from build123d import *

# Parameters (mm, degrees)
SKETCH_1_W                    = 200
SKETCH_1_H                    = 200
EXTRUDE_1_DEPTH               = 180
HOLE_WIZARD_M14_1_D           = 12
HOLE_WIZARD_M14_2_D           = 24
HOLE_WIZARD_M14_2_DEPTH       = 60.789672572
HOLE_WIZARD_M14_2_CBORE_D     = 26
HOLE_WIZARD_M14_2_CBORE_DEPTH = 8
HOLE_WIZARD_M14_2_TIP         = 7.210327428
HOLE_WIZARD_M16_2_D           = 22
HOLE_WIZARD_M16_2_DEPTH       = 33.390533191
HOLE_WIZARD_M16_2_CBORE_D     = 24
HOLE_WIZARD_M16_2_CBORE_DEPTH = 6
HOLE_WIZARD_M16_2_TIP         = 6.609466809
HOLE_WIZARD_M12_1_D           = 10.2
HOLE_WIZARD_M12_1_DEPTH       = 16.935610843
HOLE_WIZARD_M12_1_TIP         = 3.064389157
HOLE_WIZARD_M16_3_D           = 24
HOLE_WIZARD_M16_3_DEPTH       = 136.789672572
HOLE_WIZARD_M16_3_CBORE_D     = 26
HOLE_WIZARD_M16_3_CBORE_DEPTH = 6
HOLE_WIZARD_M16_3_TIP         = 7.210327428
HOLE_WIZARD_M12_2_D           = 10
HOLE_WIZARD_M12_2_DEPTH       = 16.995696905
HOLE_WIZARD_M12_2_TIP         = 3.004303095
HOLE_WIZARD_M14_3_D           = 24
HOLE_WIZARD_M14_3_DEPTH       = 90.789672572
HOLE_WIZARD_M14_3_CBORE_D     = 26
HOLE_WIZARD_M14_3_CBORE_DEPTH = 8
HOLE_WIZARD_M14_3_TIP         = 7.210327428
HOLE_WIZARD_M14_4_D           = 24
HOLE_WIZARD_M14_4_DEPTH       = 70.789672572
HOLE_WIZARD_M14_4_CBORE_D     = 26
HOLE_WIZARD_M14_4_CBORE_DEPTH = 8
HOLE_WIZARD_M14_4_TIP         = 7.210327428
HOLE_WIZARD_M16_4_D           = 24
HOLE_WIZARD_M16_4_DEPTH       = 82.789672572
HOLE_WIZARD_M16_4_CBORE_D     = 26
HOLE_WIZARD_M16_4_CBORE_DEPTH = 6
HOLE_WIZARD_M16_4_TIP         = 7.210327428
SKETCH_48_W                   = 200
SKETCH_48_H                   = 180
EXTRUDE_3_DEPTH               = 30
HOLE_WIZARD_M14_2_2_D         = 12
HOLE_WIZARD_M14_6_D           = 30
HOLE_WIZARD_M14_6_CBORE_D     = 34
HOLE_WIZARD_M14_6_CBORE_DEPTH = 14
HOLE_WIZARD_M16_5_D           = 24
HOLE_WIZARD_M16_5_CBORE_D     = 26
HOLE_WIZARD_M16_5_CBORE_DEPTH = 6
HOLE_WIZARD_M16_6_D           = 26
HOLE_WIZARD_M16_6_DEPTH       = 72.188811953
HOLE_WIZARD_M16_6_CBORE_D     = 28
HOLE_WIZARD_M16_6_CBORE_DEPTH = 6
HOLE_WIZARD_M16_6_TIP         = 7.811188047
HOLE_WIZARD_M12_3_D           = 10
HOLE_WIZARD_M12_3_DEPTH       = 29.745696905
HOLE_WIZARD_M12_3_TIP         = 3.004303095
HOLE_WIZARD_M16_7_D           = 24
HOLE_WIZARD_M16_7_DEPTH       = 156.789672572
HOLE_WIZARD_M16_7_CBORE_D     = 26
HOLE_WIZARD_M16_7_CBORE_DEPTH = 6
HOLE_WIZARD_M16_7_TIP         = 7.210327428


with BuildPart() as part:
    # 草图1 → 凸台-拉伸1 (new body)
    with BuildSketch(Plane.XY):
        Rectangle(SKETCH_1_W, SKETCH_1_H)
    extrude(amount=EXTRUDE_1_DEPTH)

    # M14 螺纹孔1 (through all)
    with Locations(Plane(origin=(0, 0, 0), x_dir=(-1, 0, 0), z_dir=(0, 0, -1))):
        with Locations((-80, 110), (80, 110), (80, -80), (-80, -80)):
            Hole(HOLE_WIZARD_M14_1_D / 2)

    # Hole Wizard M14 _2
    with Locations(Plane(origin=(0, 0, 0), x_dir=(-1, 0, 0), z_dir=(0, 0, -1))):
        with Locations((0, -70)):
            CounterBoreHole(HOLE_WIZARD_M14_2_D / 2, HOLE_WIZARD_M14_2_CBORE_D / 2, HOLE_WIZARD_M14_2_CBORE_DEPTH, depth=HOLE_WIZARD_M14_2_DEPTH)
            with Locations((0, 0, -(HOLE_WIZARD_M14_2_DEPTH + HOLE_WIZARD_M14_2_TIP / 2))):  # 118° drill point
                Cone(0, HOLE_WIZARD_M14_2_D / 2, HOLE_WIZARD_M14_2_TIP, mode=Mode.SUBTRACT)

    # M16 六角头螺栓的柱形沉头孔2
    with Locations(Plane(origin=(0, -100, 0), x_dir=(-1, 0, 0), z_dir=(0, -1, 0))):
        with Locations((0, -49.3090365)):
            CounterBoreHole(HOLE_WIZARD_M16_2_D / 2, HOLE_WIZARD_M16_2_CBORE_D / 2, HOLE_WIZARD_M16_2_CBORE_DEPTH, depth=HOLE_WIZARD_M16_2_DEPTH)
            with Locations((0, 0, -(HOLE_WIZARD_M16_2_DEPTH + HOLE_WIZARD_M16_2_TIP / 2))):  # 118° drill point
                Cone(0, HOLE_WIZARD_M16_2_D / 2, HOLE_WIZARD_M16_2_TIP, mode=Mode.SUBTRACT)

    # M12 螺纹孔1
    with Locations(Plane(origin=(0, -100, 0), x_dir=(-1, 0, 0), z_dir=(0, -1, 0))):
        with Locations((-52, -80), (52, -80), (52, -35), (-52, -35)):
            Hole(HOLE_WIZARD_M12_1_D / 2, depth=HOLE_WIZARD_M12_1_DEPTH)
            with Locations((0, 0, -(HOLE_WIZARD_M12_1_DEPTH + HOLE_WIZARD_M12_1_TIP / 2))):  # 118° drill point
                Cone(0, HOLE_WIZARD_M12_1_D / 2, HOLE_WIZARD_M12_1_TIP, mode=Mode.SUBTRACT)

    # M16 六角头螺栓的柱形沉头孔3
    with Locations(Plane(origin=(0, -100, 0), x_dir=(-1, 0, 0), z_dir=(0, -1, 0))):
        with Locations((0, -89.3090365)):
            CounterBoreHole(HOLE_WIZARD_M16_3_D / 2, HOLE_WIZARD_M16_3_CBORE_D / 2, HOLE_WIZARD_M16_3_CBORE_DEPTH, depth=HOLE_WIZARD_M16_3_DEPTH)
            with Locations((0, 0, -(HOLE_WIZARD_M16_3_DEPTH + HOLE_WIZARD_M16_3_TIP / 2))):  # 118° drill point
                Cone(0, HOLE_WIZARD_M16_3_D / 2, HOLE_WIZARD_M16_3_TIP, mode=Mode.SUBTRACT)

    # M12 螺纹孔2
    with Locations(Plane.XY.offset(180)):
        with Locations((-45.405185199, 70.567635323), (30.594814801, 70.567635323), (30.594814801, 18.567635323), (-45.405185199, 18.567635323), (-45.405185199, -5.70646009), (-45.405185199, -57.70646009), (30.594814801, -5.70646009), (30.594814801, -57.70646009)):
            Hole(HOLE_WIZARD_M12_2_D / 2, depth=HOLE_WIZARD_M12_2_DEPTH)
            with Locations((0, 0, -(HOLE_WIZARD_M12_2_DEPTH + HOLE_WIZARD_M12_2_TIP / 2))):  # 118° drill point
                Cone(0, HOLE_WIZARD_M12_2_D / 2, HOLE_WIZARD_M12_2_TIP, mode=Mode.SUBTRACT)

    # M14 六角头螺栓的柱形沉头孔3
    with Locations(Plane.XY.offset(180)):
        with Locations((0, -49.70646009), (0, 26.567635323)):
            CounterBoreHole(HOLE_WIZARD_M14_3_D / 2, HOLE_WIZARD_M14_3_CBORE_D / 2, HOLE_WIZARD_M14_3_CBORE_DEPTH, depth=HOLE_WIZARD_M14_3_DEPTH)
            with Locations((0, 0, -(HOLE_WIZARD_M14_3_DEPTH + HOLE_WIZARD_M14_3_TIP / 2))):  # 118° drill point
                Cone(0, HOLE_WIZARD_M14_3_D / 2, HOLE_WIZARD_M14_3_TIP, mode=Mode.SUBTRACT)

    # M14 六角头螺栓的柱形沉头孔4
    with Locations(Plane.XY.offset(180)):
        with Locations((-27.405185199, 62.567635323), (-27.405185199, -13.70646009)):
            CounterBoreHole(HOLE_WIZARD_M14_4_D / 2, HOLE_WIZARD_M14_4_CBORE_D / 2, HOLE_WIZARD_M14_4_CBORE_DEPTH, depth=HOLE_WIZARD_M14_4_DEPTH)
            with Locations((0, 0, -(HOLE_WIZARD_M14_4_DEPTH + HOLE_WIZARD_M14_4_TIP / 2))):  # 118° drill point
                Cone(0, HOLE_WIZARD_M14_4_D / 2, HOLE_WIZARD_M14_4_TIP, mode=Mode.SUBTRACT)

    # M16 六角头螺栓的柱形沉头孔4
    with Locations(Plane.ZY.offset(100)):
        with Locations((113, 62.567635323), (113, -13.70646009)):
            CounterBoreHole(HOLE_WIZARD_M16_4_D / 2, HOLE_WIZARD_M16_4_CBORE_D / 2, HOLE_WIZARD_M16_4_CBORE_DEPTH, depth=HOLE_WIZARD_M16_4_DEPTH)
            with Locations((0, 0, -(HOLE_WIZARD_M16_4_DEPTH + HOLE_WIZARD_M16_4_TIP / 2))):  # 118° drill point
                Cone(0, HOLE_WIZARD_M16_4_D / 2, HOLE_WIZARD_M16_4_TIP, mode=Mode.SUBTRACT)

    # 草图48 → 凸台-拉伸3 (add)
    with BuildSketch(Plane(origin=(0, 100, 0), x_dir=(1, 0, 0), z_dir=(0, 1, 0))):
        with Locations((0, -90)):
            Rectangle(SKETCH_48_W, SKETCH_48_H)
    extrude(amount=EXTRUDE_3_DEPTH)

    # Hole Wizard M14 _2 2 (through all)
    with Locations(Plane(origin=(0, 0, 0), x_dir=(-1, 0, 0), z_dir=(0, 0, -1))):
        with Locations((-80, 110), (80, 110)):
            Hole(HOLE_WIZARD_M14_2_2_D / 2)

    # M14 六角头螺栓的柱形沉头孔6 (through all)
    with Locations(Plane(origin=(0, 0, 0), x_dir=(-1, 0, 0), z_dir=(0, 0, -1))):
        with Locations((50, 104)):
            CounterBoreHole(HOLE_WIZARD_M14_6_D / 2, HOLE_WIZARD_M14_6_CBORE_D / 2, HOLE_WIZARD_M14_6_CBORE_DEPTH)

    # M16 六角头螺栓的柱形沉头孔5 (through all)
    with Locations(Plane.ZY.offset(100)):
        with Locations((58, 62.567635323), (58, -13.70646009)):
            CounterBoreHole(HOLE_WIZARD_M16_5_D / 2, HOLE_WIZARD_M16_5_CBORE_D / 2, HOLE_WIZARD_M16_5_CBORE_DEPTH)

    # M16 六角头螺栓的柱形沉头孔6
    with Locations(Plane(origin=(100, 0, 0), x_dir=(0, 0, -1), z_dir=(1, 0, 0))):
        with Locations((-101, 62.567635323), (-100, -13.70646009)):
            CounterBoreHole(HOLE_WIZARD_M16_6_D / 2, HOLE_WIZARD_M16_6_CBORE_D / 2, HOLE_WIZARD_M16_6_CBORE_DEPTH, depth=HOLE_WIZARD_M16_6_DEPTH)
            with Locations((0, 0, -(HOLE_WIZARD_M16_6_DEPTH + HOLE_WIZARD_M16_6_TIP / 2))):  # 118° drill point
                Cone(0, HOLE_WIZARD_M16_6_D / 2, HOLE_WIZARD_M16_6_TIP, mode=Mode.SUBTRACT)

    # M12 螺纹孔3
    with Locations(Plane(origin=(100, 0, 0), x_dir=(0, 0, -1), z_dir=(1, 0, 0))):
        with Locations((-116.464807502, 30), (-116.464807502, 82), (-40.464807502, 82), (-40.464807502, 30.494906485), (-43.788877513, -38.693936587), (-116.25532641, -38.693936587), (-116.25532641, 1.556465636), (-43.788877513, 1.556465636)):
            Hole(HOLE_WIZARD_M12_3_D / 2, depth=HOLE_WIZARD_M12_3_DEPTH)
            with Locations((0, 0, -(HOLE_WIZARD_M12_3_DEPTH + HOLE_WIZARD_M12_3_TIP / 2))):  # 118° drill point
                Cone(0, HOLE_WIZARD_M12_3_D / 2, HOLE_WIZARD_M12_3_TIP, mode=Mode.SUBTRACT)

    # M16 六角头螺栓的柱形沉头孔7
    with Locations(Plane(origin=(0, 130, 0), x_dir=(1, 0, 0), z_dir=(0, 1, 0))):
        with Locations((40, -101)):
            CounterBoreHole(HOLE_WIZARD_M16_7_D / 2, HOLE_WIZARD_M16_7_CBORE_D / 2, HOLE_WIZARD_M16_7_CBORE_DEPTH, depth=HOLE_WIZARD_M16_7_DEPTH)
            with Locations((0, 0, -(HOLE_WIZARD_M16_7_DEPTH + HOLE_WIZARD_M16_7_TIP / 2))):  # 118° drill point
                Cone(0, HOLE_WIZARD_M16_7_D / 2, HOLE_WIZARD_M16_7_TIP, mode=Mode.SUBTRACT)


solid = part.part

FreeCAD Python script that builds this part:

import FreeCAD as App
import Part
import Sketcher
from FreeCAD import Vector


def add_polygon(sketch, points):
    """Adds a closed chain of lines whose ends are joined by coincident constraints."""
    first, n = sketch.GeometryCount, len(points)
    for a, b in zip(points, points[1:] + points[:1]):
        sketch.addGeometry(Part.LineSegment(App.Vector(*a, 0), App.Vector(*b, 0)), False)
    for i in range(n):
        sketch.addConstraint(Sketcher.Constraint("Coincident", first + i, 2, first + (i + 1) % n, 1))

doc = App.newDocument("Part")
body = doc.addObject("PartDesign::Body", "Body")

# Sketch on XY plane
sketch1 = body.newObject("Sketcher::SketchObject", "Sketch")
sketch1.AttachmentSupport = (doc.getObject("XY_Plane"), [""])
sketch1.MapMode = "FlatFace"
add_polygon(sketch1, [(-100, 100), (-100, -100), (100, -100), (100, 100)])  # lines 0-3
sketch1.addConstraint([
    Sketcher.Constraint("Vertical", 0),
    Sketcher.Constraint("Horizontal", 1),
    Sketcher.Constraint("Vertical", 2),
    Sketcher.Constraint("Horizontal", 3),
    Sketcher.Constraint("Symmetric", 0, 2, 2, 2, -1, 1),
    Sketcher.Constraint("Equal", 3, 0),
    Sketcher.Constraint("DistanceX", 1, 1, 1, 2, 200.0),
])
pad1 = body.newObject("PartDesign::Pad", "Pad")
pad1.Profile = sketch1
pad1.Length = 180

# Sketch on XY plane
sketch2 = body.newObject("Sketcher::SketchObject", "Sketch001")
sketch2.AttachmentSupport = (doc.getObject("XY_Plane"), [""])
sketch2.MapMode = "FlatFace"
sketch2.addGeometry([
    Part.Circle(Vector(80, 110, 0), Vector(0, 0, 1), 6),
    Part.Circle(Vector(-80, 110, 0), Vector(0, 0, 1), 6),
    Part.Circle(Vector(-80, -80, 0), Vector(0, 0, 1), 6),
    Part.Circle(Vector(80, -80, 0), Vector(0, 0, 1), 6),
], False)
sketch2.addConstraint([
    Sketcher.Constraint("Equal", 0, 1),
    Sketcher.Constraint("Equal", 1, 2),
    Sketcher.Constraint("Equal", 2, 3),
    Sketcher.Constraint("Symmetric", 0, 3, 1, 3, -2),
    Sketcher.Constraint("Symmetric", 2, 3, 3, 3, -2),
    Sketcher.Constraint("Vertical", 1, 3, 2, 3),
    Sketcher.Constraint("Diameter", 0, 12.0),
    Sketcher.Constraint("DistanceX", -1, 1, 0, 3, 80.0),
    Sketcher.Constraint("DistanceY", -1, 1, 0, 3, 110.0),
    Sketcher.Constraint("DistanceY", 2, 3, -1, 1, 80.0),
])
doc.recompute()
hole = body.newObject("PartDesign::Hole", "Hole")
hole.Profile = sketch2
hole.ThreadType = "None"
hole.Diameter = 12
hole.DepthType = "ThroughAll"
hole.Reversed = True

# Sketch on XY plane
sketch3 = body.newObject("Sketcher::SketchObject", "Sketch002")
sketch3.AttachmentSupport = (doc.getObject("XY_Plane"), [""])
sketch3.MapMode = "FlatFace"
sketch3.addGeometry(Part.Circle(Vector(0, -70, 0), Vector(0, 0, 1), 12), False)
sketch3.addConstraint([
    Sketcher.Constraint("PointOnObject", 0, 3, -2),
    Sketcher.Constraint("Diameter", 0, 24.0),
    Sketcher.Constraint("DistanceY", 0, 3, -1, 1, 70.0),
])
doc.recompute()
hole2 = body.newObject("PartDesign::Hole", "Hole001")
hole2.Profile = sketch3
hole2.ThreadType = "None"
hole2.Diameter = 24
hole2.DepthType = "Dimension"
hole2.Depth = 60.789673
hole2.DrillPoint = "Angled"
hole2.DrillPointAngle = 118
hole2.HoleCutType = "Counterbore"
hole2.HoleCutDiameter = 26
hole2.HoleCutDepth = 8
hole2.Reversed = True

# Sketch on XZ plane
sketch4 = body.newObject("Sketcher::SketchObject", "Sketch003")
sketch4.AttachmentSupport = (doc.getObject("XZ_Plane"), [""])
sketch4.MapMode = "FlatFace"
sketch4.AttachmentOffset = App.Placement(Vector(0, 0, 100), App.Rotation())
sketch4.addGeometry(Part.Circle(Vector(0, 49, 0), Vector(0, 0, 1), 11), False)
sketch4.addConstraint([
    Sketcher.Constraint("PointOnObject", 0, 3, -2),
    Sketcher.Constraint("Diameter", 0, 22.0),
    Sketcher.Constraint("DistanceY", -1, 1, 0, 3, 49.309036),
])
doc.recompute()
hole3 = body.newObject("PartDesign::Hole", "Hole002")
hole3.Profile = sketch4
hole3.ThreadType = "None"
hole3.Diameter = 22
hole3.DepthType = "Dimension"
hole3.Depth = 33.390533
hole3.DrillPoint = "Angled"
hole3.DrillPointAngle = 118
hole3.HoleCutType = "Counterbore"
hole3.HoleCutDiameter = 24
hole3.HoleCutDepth = 6

# Sketch on XZ plane
sketch5 = body.newObject("Sketcher::SketchObject", "Sketch004")
sketch5.AttachmentSupport = (doc.getObject("XZ_Plane"), [""])
sketch5.MapMode = "FlatFace"
sketch5.AttachmentOffset = App.Placement(Vector(0, 0, 100), App.Rotation())
sketch5.addGeometry([
    Part.Circle(Vector(52, 80, 0), Vector(0, 0, 1), 5),
    Part.Circle(Vector(-52, 80, 0), Vector(0, 0, 1), 5),
    Part.Circle(Vector(-52, 35, 0), Vector(0, 0, 1), 5),
    Part.Circle(Vector(52, 35, 0), Vector(0, 0, 1), 5),
], False)
sketch5.addConstraint([
    Sketcher.Constraint("Equal", 0, 1),
    Sketcher.Constraint("Equal", 1, 2),
    Sketcher.Constraint("Equal", 2, 3),
    Sketcher.Constraint("Symmetric", 0, 3, 1, 3, -2),
    Sketcher.Constraint("Symmetric", 2, 3, 3, 3, -2),
    Sketcher.Constraint("Vertical", 1, 3, 2, 3),
    Sketcher.Constraint("Diameter", 0, 10.2),
    Sketcher.Constraint("DistanceX", -1, 1, 0, 3, 52.0),
    Sketcher.Constraint("DistanceY", -1, 1, 0, 3, 80.0),
    Sketcher.Constraint("DistanceY", -1, 1, 2, 3, 35.0),
])
doc.recompute()
hole4 = body.newObject("PartDesign::Hole", "Hole003")
hole4.Profile = sketch5
hole4.ThreadType = "None"
hole4.Diameter = 10.2
hole4.DepthType = "Dimension"
hole4.Depth = 16.935611
hole4.DrillPoint = "Angled"
hole4.DrillPointAngle = 118

# Sketch on XZ plane
sketch6 = body.newObject("Sketcher::SketchObject", "Sketch005")
sketch6.AttachmentSupport = (doc.getObject("XZ_Plane"), [""])
sketch6.MapMode = "FlatFace"
sketch6.AttachmentOffset = App.Placement(Vector(0, 0, 100), App.Rotation())
sketch6.addGeometry(Part.Circle(Vector(0, 89, 0), Vector(0, 0, 1), 12), False)
sketch6.addConstraint([
    Sketcher.Constraint("PointOnObject", 0, 3, -2),
    Sketcher.Constraint("Diameter", 0, 24.0),
    Sketcher.Constraint("DistanceY", -1, 1, 0, 3, 89.309037),
])
doc.recompute()
hole5 = body.newObject("PartDesign::Hole", "Hole004")
hole5.Profile = sketch6
hole5.ThreadType = "None"
hole5.Diameter = 24
hole5.DepthType = "Dimension"
hole5.Depth = 136.789673
hole5.DrillPoint = "Angled"
hole5.DrillPointAngle = 118
hole5.HoleCutType = "Counterbore"
hole5.HoleCutDiameter = 26
hole5.HoleCutDepth = 6

# Sketch on XY plane
sketch7 = body.newObject("Sketcher::SketchObject", "Sketch006")
sketch7.AttachmentSupport = (doc.getObject("XY_Plane"), [""])
sketch7.MapMode = "FlatFace"
sketch7.AttachmentOffset = App.Placement(Vector(0, 0, 180), App.Rotation())
sketch7.addGeometry([
    Part.Circle(Vector(-45, 71, 0), Vector(0, 0, 1), 5),  # 0
    Part.Circle(Vector(31, 71, 0), Vector(0, 0, 1), 5),  # 1
    Part.Circle(Vector(31, 19, 0), Vector(0, 0, 1), 5),  # 2
    Part.Circle(Vector(-45, 19, 0), Vector(0, 0, 1), 5),  # 3
    Part.Circle(Vector(-45, -6, 0), Vector(0, 0, 1), 5),  # 4
    Part.Circle(Vector(-45, -58, 0), Vector(0, 0, 1), 5),  # 5
    Part.Circle(Vector(31, -6, 0), Vector(0, 0, 1), 5),  # 6
    Part.Circle(Vector(31, -58, 0), Vector(0, 0, 1), 5),  # 7
], False)
sketch7.addConstraint([
    Sketcher.Constraint("Equal", 0, 1),
    Sketcher.Constraint("Equal", 1, 2),
    Sketcher.Constraint("Equal", 2, 3),
    Sketcher.Constraint("Equal", 3, 4),
    Sketcher.Constraint("Equal", 4, 5),
    Sketcher.Constraint("Equal", 5, 6),
    Sketcher.Constraint("Equal", 6, 7),
    Sketcher.Constraint("Horizontal", 0, 3, 1, 3),
    Sketcher.Constraint("Horizontal", 2, 3, 3, 3),
    Sketcher.Constraint("Horizontal", 4, 3, 6, 3),
    Sketcher.Constraint("Horizontal", 5, 3, 7, 3),
    Sketcher.Constraint("Vertical", 1, 3, 2, 3),
    Sketcher.Constraint("Vertical", 0, 3, 3, 3),
    Sketcher.Constraint("Vertical", 3, 3, 4, 3),
    Sketcher.Constraint("Vertical", 4, 3, 5, 3),
    Sketcher.Constraint("Vertical", 2, 3, 6, 3),
    Sketcher.Constraint("Vertical", 6, 3, 7, 3),
    Sketcher.Constraint("Diameter", 0, 10.0),
    Sketcher.Constraint("DistanceX", 0, 3, 1, 3, 76.0),
    Sketcher.Constraint("DistanceY", 2, 3, 1, 3, 52.0),
    Sketcher.Constraint("DistanceY", 5, 3, 4, 3, 52.0),
    Sketcher.Constraint("DistanceY", 4, 3, -1, 1, 5.70646),
    Sketcher.Constraint("DistanceX", 0, 3, -1, 1, 45.405185),
    Sketcher.Constraint("DistanceY", -1, 1, 0, 3, 70.567635),
])
doc.recompute()
hole6 = body.newObject("PartDesign::Hole", "Hole005")
hole6.Profile = sketch7
hole6.ThreadType = "None"
hole6.Diameter = 10
hole6.DepthType = "Dimension"
hole6.Depth = 16.995697
hole6.DrillPoint = "Angled"
hole6.DrillPointAngle = 118

# Sketch on XY plane
sketch8 = body.newObject("Sketcher::SketchObject", "Sketch007")
sketch8.AttachmentSupport = (doc.getObject("XY_Plane"), [""])
sketch8.MapMode = "FlatFace"
sketch8.AttachmentOffset = App.Placement(Vector(0, 0, 180), App.Rotation())
sketch8.addGeometry([
    Part.Circle(Vector(0, -50, 0), Vector(0, 0, 1), 12),
    Part.Circle(Vector(0, 27, 0), Vector(0, 0, 1), 12),
], False)
sketch8.addConstraint([
    Sketcher.Constraint("Equal", 0, 1),
    Sketcher.Constraint("PointOnObject", 0, 3, -2),
    Sketcher.Constraint("PointOnObject", 1, 3, -2),
    Sketcher.Constraint("Diameter", 0, 24.0),
    Sketcher.Constraint("DistanceY", 0, 3, -1, 1, 49.70646),
    Sketcher.Constraint("DistanceY", -1, 1, 1, 3, 26.567635),
])
doc.recompute()
hole7 = body.newObject("PartDesign::Hole", "Hole006")
hole7.Profile = sketch8
hole7.ThreadType = "None"
hole7.Diameter = 24
hole7.DepthType = "Dimension"
hole7.Depth = 90.789673
hole7.DrillPoint = "Angled"
hole7.DrillPointAngle = 118
hole7.HoleCutType = "Counterbore"
hole7.HoleCutDiameter = 26
hole7.HoleCutDepth = 8

# Sketch on XY plane
sketch9 = body.newObject("Sketcher::SketchObject", "Sketch008")
sketch9.AttachmentSupport = (doc.getObject("XY_Plane"), [""])
sketch9.MapMode = "FlatFace"
sketch9.AttachmentOffset = App.Placement(Vector(0, 0, 180), App.Rotation())
sketch9.addGeometry([
    Part.Circle(Vector(-27, 63, 0), Vector(0, 0, 1), 12),
    Part.Circle(Vector(-27, -14, 0), Vector(0, 0, 1), 12),
], False)
sketch9.addConstraint([
    Sketcher.Constraint("Equal", 0, 1),
    Sketcher.Constraint("Vertical", 0, 3, 1, 3),
    Sketcher.Constraint("Diameter", 0, 24.0),
    Sketcher.Constraint("DistanceY", 1, 3, -1, 1, 13.70646),
    Sketcher.Constraint("DistanceX", 0, 3, -1, 1, 27.405185),
    Sketcher.Constraint("DistanceY", -1, 1, 0, 3, 62.567635),
])
doc.recompute()
hole8 = body.newObject("PartDesign::Hole", "Hole007")
hole8.Profile = sketch9
hole8.ThreadType = "None"
hole8.Diameter = 24
hole8.DepthType = "Dimension"
hole8.Depth = 70.789673
hole8.DrillPoint = "Angled"
hole8.DrillPointAngle = 118
hole8.HoleCutType = "Counterbore"
hole8.HoleCutDiameter = 26
hole8.HoleCutDepth = 8

# Sketch on YZ plane
sketch10 = body.newObject("Sketcher::SketchObject", "Sketch009")
sketch10.AttachmentSupport = (doc.getObject("YZ_Plane"), [""])
sketch10.MapMode = "FlatFace"
sketch10.AttachmentOffset = App.Placement(Vector(0, 0, -100), App.Rotation())
sketch10.addGeometry([
    Part.Circle(Vector(63, 113, 0), Vector(0, 0, 1), 12),
    Part.Circle(Vector(-14, 113, 0), Vector(0, 0, 1), 12),
], False)
sketch10.addConstraint([
    Sketcher.Constraint("Equal", 0, 1),
    Sketcher.Constraint("Horizontal", 0, 3, 1, 3),
    Sketcher.Constraint("Diameter", 0, 24.0),
    Sketcher.Constraint("DistanceY", -1, 1, 0, 3, 113.0),
    Sketcher.Constraint("DistanceX", 1, 3, -1, 1, 13.70646),
    Sketcher.Constraint("DistanceX", -1, 1, 0, 3, 62.567635),
])
doc.recompute()
hole9 = body.newObject("PartDesign::Hole", "Hole008")
hole9.Profile = sketch10
hole9.ThreadType = "None"
hole9.Diameter = 24
hole9.DepthType = "Dimension"
hole9.Depth = 82.789673
hole9.DrillPoint = "Angled"
hole9.DrillPointAngle = 118
hole9.HoleCutType = "Counterbore"
hole9.HoleCutDiameter = 26
hole9.HoleCutDepth = 6
hole9.Reversed = True

# Sketch on XZ plane
sketch11 = body.newObject("Sketcher::SketchObject", "Sketch010")
sketch11.AttachmentSupport = (doc.getObject("XZ_Plane"), [""])
sketch11.MapMode = "FlatFace"
sketch11.AttachmentOffset = App.Placement(Vector(0, 0, -100), App.Rotation())
add_polygon(sketch11, [(-100, 0), (-100, 180), (100, 180), (100, 0)])  # lines 0-3
sketch11.addConstraint([
    Sketcher.Constraint("Vertical", 0),
    Sketcher.Constraint("Horizontal", 1),
    Sketcher.Constraint("Vertical", 2),
    Sketcher.Constraint("Horizontal", 3),
    Sketcher.Constraint("Symmetric", 2, 2, 3, 2, -1, 1),
    Sketcher.Constraint("DistanceX", 1, 1, 1, 2, 200.0),
    Sketcher.Constraint("DistanceY", 0, 1, 0, 2, 180.0),
])
pad2 = body.newObject("PartDesign::Pad", "Pad001")
pad2.Profile = sketch11
pad2.Length = 30
pad2.Reversed = True

# Sketch on XY plane
sketch12 = body.newObject("Sketcher::SketchObject", "Sketch011")
sketch12.AttachmentSupport = (doc.getObject("XY_Plane"), [""])
sketch12.MapMode = "FlatFace"
sketch12.addGeometry([
    Part.Circle(Vector(80, 110, 0), Vector(0, 0, 1), 6),
    Part.Circle(Vector(-80, 110, 0), Vector(0, 0, 1), 6),
], False)
sketch12.addConstraint([
    Sketcher.Constraint("Equal", 0, 1),
    Sketcher.Constraint("Symmetric", 0, 3, 1, 3, -2),
    Sketcher.Constraint("Diameter", 0, 12.0),
    Sketcher.Constraint("DistanceX", -1, 1, 0, 3, 80.0),
    Sketcher.Constraint("DistanceY", -1, 1, 0, 3, 110.0),
])
doc.recompute()
hole10 = body.newObject("PartDesign::Hole", "Hole009")
hole10.Profile = sketch12
hole10.ThreadType = "None"
hole10.Diameter = 12
hole10.DepthType = "ThroughAll"
hole10.Reversed = True

# Sketch on XY plane
sketch13 = body.newObject("Sketcher::SketchObject", "Sketch012")
sketch13.AttachmentSupport = (doc.getObject("XY_Plane"), [""])
sketch13.MapMode = "FlatFace"
sketch13.addGeometry(Part.Circle(Vector(-50, 104, 0), Vector(0, 0, 1), 15), False)
sketch13.addConstraint([
    Sketcher.Constraint("Diameter", 0, 30.0),
    Sketcher.Constraint("DistanceX", 0, 3, -1, 1, 50.0),
    Sketcher.Constraint("DistanceY", -1, 1, 0, 3, 104.0),
])
doc.recompute()
hole11 = body.newObject("PartDesign::Hole", "Hole010")
hole11.Profile = sketch13
hole11.ThreadType = "None"
hole11.Diameter = 30
hole11.DepthType = "ThroughAll"
hole11.HoleCutType = "Counterbore"
hole11.HoleCutDiameter = 34
hole11.HoleCutDepth = 14
hole11.Reversed = True

# Sketch on YZ plane
sketch14 = body.newObject("Sketcher::SketchObject", "Sketch013")
sketch14.AttachmentSupport = (doc.getObject("YZ_Plane"), [""])
sketch14.MapMode = "FlatFace"
sketch14.AttachmentOffset = App.Placement(Vector(0, 0, -100), App.Rotation())
sketch14.addGeometry([
    Part.Circle(Vector(63, 58, 0), Vector(0, 0, 1), 12),
    Part.Circle(Vector(-14, 58, 0), Vector(0, 0, 1), 12),
], False)
sketch14.addConstraint([
    Sketcher.Constraint("Equal", 0, 1),
    Sketcher.Constraint("Horizontal", 0, 3, 1, 3),
    Sketcher.Constraint("Diameter", 0, 24.0),
    Sketcher.Constraint("DistanceY", -1, 1, 0, 3, 58.0),
    Sketcher.Constraint("DistanceX", 1, 3, -1, 1, 13.70646),
    Sketcher.Constraint("DistanceX", -1, 1, 0, 3, 62.567635),
])
doc.recompute()
hole12 = body.newObject("PartDesign::Hole", "Hole011")
hole12.Profile = sketch14
hole12.ThreadType = "None"
hole12.Diameter = 24
hole12.DepthType = "ThroughAll"
hole12.HoleCutType = "Counterbore"
hole12.HoleCutDiameter = 26
hole12.HoleCutDepth = 6
hole12.Reversed = True

# Sketch on YZ plane
sketch15 = body.newObject("Sketcher::SketchObject", "Sketch014")
sketch15.AttachmentSupport = (doc.getObject("YZ_Plane"), [""])
sketch15.MapMode = "FlatFace"
sketch15.AttachmentOffset = App.Placement(Vector(0, 0, 100), App.Rotation())
sketch15.addGeometry([
    Part.Circle(Vector(63, 101, 0), Vector(0, 0, 1), 13),
    Part.Circle(Vector(-14, 100, 0), Vector(0, 0, 1), 13),
], False)
sketch15.addConstraint([
    Sketcher.Constraint("Equal", 0, 1),
    Sketcher.Constraint("Diameter", 0, 26.0),
    Sketcher.Constraint("DistanceY", -1, 1, 0, 3, 101.0),
    Sketcher.Constraint("DistanceY", -1, 1, 1, 3, 100.0),
    Sketcher.Constraint("DistanceX", 1, 3, -1, 1, 13.70646),
    Sketcher.Constraint("DistanceX", -1, 1, 0, 3, 62.567635),
])
doc.recompute()
hole13 = body.newObject("PartDesign::Hole", "Hole012")
hole13.Profile = sketch15
hole13.ThreadType = "None"
hole13.Diameter = 26
hole13.DepthType = "Dimension"
hole13.Depth = 72.188812
hole13.DrillPoint = "Angled"
hole13.DrillPointAngle = 118
hole13.HoleCutType = "Counterbore"
hole13.HoleCutDiameter = 28
hole13.HoleCutDepth = 6

# Sketch on YZ plane
sketch16 = body.newObject("Sketcher::SketchObject", "Sketch015")
sketch16.AttachmentSupport = (doc.getObject("YZ_Plane"), [""])
sketch16.MapMode = "FlatFace"
sketch16.AttachmentOffset = App.Placement(Vector(0, 0, 100), App.Rotation())
sketch16.addGeometry([
    Part.Circle(Vector(30, 116, 0), Vector(0, 0, 1), 5),  # 0
    Part.Circle(Vector(82, 116, 0), Vector(0, 0, 1), 5),  # 1
    Part.Circle(Vector(82, 40, 0), Vector(0, 0, 1), 5),  # 2
    Part.Circle(Vector(30, 40, 0), Vector(0, 0, 1), 5),  # 3
    Part.Circle(Vector(-39, 44, 0), Vector(0, 0, 1), 5),  # 4
    Part.Circle(Vector(-39, 116, 0), Vector(0, 0, 1), 5),  # 5
    Part.Circle(Vector(2, 116, 0), Vector(0, 0, 1), 5),  # 6
    Part.Circle(Vector(2, 44, 0), Vector(0, 0, 1), 5),  # 7
], False)
sketch16.addConstraint([
    Sketcher.Constraint("Equal", 0, 1),
    Sketcher.Constraint("Equal", 1, 2),
    Sketcher.Constraint("Equal", 2, 3),
    Sketcher.Constraint("Equal", 3, 4),
    Sketcher.Constraint("Equal", 4, 5),
    Sketcher.Constraint("Equal", 5, 6),
    Sketcher.Constraint("Equal", 6, 7),
    Sketcher.Constraint("Horizontal", 0, 3, 1, 3),
    Sketcher.Constraint("Horizontal", 2, 3, 3, 3),
    Sketcher.Constraint("Horizontal", 5, 3, 6, 3),
    Sketcher.Constraint("Horizontal", 4, 3, 7, 3),
    Sketcher.Constraint("Vertical", 1, 3, 2, 3),
    Sketcher.Constraint("Vertical", 4, 3, 5, 3),
    Sketcher.Constraint("Vertical", 6, 3, 7, 3),
    Sketcher.Constraint("Diameter", 0, 10.0),
    Sketcher.Constraint("DistanceX", -1, 1, 0, 3, 30.0),
    Sketcher.Constraint("DistanceX", -1, 1, 1, 3, 82.0),
    Sketcher.Constraint("DistanceY", 2, 3, 1, 3, 76.0),
    Sketcher.Constraint("DistanceY", 3, 3, 4, 3, 3.32407),
    Sketcher.Constraint("DistanceY", 5, 3, 0, 3, 0.209481),
    Sketcher.Constraint("DistanceX", 6, 3, 3, 3, 28.938441),
    Sketcher.Constraint("DistanceY", -1, 1, 0, 3, 116.464808),
    Sketcher.Constraint("DistanceX", -1, 1, 3, 3, 30.494906),
    Sketcher.Constraint("DistanceX", 4, 3, -1, 1, 38.693937),
])
doc.recompute()
hole14 = body.newObject("PartDesign::Hole", "Hole013")
hole14.Profile = sketch16
hole14.ThreadType = "None"
hole14.Diameter = 10
hole14.DepthType = "Dimension"
hole14.Depth = 29.745697
hole14.DrillPoint = "Angled"
hole14.DrillPointAngle = 118

# Sketch on XZ plane
sketch17 = body.newObject("Sketcher::SketchObject", "Sketch016")
sketch17.AttachmentSupport = (doc.getObject("XZ_Plane"), [""])
sketch17.MapMode = "FlatFace"
sketch17.AttachmentOffset = App.Placement(Vector(0, 0, -130), App.Rotation())
sketch17.addGeometry(Part.Circle(Vector(40, 101, 0), Vector(0, 0, 1), 12), False)
sketch17.addConstraint([
    Sketcher.Constraint("Diameter", 0, 24.0),
    Sketcher.Constraint("DistanceX", -1, 1, 0, 3, 40.0),
    Sketcher.Constraint("DistanceY", -1, 1, 0, 3, 101.0),
])
doc.recompute()
hole15 = body.newObject("PartDesign::Hole", "Hole014")
hole15.Profile = sketch17
hole15.ThreadType = "None"
hole15.Diameter = 24
hole15.DepthType = "Dimension"
hole15.Depth = 156.789673
hole15.DrillPoint = "Angled"
hole15.DrillPointAngle = 118
hole15.HoleCutType = "Counterbore"
hole15.HoleCutDiameter = 26
hole15.HoleCutDepth = 6
hole15.Reversed = True

doc.recompute()
